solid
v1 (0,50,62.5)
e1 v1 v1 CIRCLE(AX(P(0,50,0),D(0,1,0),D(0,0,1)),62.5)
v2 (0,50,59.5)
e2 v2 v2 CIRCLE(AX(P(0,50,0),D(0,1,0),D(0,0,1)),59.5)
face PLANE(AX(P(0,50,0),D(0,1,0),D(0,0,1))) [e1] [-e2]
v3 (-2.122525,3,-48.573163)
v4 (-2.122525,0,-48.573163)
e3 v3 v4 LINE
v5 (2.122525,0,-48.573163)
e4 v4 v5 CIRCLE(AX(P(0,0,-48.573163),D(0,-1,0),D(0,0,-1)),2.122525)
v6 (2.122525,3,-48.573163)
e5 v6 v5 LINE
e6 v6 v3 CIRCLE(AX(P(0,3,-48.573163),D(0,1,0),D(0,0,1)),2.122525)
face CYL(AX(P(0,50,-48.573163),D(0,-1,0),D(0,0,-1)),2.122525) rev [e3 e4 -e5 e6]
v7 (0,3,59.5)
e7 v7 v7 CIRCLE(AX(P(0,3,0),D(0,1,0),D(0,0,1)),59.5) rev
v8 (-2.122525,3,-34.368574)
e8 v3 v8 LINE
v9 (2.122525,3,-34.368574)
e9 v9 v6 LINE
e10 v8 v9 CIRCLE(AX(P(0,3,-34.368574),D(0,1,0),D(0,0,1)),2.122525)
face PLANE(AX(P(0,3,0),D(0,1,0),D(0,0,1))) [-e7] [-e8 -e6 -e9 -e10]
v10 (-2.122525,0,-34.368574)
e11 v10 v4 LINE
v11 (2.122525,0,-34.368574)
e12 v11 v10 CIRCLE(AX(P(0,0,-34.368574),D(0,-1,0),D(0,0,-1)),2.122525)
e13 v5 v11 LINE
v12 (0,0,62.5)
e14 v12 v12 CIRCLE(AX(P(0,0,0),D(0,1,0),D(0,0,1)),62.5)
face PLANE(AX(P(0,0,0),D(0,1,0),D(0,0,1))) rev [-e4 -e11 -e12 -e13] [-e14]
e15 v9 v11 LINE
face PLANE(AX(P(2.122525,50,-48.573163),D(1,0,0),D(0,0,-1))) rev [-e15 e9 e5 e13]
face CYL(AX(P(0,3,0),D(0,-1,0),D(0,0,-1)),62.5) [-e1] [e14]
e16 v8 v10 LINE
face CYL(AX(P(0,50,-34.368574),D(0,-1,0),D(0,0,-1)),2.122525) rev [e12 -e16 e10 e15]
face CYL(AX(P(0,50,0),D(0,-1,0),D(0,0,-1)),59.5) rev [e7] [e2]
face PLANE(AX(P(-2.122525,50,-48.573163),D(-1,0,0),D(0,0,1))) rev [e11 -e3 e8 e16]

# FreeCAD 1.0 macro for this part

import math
import FreeCAD as App
import Part
import Sketcher

V = App.Vector
Q = App.Units.Quantity

doc = App.newDocument("Part")
body = doc.addObject("PartDesign::Body", "Body")

sketch1 = body.newObject("Sketcher::SketchObject", "Sketch")
sketch1.AttachmentSupport = (doc.getObject("XZ_Plane"), [""])
sketch1.MapMode = "FlatFace"
sketch1.addGeometry(Part.Circle(V(0, 0, 0), V(0, 0, 1), 62.5), False)
sketch1.addConstraint([
    Sketcher.Constraint("Coincident", 0, 3, -1, 1),
    Sketcher.Constraint("Diameter", 0, Q("125 mm")),
])
pad1 = body.newObject("PartDesign::Pad", "Pad")
pad1.Profile = sketch1
pad1.Length = 3
pad1.Reversed = True

sketch2 = body.newObject("Sketcher::SketchObject", "Sketch001")
sketch2.AttachmentSupport = (doc.getObject("XZ_Plane"), [""])
sketch2.MapMode = "FlatFace"
sketch2.addGeometry([
    Part.Circle(V(0, 0, 0), V(0, 0, 1), 62.5),
    Part.Circle(V(0, 0, 0), V(0, 0, 1), 59.5),
], False)
sketch2.addConstraint([
    Sketcher.Constraint("Coincident", 0, 3, -1, 1),
    Sketcher.Constraint("Coincident", 1, 3, -1, 1),
    Sketcher.Constraint("Diameter", 0, Q("125 mm")),
    Sketcher.Constraint("Diameter", 1, Q("119 mm")),
])
pad2 = body.newObject("PartDesign::Pad", "Pad001")
pad2.Profile = sketch2
pad2.Length = 50
pad2.Reversed = True

sketch3 = body.newObject("Sketcher::SketchObject", "Sketch002")
sketch3.AttachmentSupport = (doc.getObject("XZ_Plane"), [""])
sketch3.MapMode = "FlatFace"
sketch3.addGeometry([
    Part.LineSegment(V(-2.122525, -34.368574, 0), V(-2.122525, -48.573163, 0)),
    Part.ArcOfCircle(Part.Circle(V(0, -48.573163, 0), V(0, 0, 1), 2.122525), math.radians(180), math.radians(360)),
    Part.LineSegment(V(2.122525, -48.573163, 0), V(2.122525, -34.368574, 0)),
    Part.ArcOfCircle(Part.Circle(V(0, -34.368574, 0), V(0, 0, 1), 2.122525), math.radians(0), math.radians(180)),
], False)
sketch3.addConstraint([
    Sketcher.Constraint("Tangent", 0, 2, 1, 1),
    Sketcher.Constraint("Tangent", 1, 2, 2, 1),
    Sketcher.Constraint("Tangent", 2, 2, 3, 1),
    Sketcher.Constraint("Tangent", 3, 2, 0, 1),
    Sketcher.Constraint("Vertical", 0),
    Sketcher.Constraint("Vertical", 2),
    Sketcher.Constraint("PointOnObject", 1, 3, -2),
    Sketcher.Constraint("Radius", 1, Q("2.122525 mm")),
    Sketcher.Constraint("DistanceY", 0, 2, 0, 1, Q("14.204589 mm")),
    Sketcher.Constraint("DistanceY", 1, 3, -1, 1, Q("48.573163 mm")),
])
pocket1 = body.newObject("PartDesign::Pocket", "Pocket")
pocket1.Profile = sketch3
pocket1.Length = 50

doc.recompute()
